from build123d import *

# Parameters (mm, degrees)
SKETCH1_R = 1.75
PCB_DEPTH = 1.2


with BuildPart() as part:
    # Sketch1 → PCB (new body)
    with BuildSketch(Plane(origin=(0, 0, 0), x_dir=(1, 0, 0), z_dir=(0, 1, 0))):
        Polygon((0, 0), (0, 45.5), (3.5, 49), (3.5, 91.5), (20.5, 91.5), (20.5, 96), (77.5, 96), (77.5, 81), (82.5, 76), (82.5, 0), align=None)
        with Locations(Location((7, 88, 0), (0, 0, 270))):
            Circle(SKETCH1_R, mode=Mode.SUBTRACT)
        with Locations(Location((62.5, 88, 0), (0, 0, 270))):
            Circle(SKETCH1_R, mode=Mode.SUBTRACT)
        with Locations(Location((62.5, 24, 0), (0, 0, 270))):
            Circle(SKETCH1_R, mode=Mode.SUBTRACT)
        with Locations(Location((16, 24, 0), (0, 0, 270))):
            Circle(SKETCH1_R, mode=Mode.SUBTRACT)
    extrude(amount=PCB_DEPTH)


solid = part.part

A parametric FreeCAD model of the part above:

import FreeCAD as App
import Part
import Sketcher

V = App.Vector
Q = App.Units.Quantity

doc = App.newDocument("Part")
body = doc.addObject("PartDesign::Body", "Body")

# Sketch on XZ plane
sketch1 = doc.addObject("Sketcher::SketchObject", "Sketch")
body.addObject(sketch1)
sketch1.AttachmentSupport = (doc.XZ_Plane, [""])
sketch1.MapMode = "FlatFace"
sketch1.addGeometry(Part.LineSegment(V(0, -45.5, 0), V(0, 0, 0)), False)
sketch1.addGeometry(Part.LineSegment(V(0, 0, 0), V(82.5, 0, 0)), False)
sketch1.addGeometry(Part.LineSegment(V(82.5, 0, 0), V(82.5, -76, 0)), False)
sketch1.addGeometry(Part.LineSegment(V(82.5, -76, 0), V(77.5, -81, 0)), False)
sketch1.addGeometry(Part.LineSegment(V(77.5, -81, 0), V(77.5, -96, 0)), False)
sketch1.addGeometry(Part.LineSegment(V(77.5, -96, 0), V(20.5, -96, 0)), False)
sketch1.addGeometry(Part.LineSegment(V(20.5, -96, 0), V(20.5, -91.5, 0)), False)
sketch1.addGeometry(Part.LineSegment(V(20.5, -91.5, 0), V(3.5, -91.5, 0)), False)
sketch1.addGeometry(Part.LineSegment(V(3.5, -91.5, 0), V(3.5, -49, 0)), False)
sketch1.addGeometry(Part.LineSegment(V(3.5, -49, 0), V(0, -45.5, 0)), False)
sketch1.addGeometry(Part.Circle(V(62.5, -24, 0), V(0, 0, 1), 1.8), False)
sketch1.addGeometry(Part.Circle(V(16, -24, 0), V(0, 0, 1), 1.8), False)
sketch1.addGeometry(Part.Circle(V(62.5, -88, 0), V(0, 0, 1), 1.8), False)
sketch1.addGeometry(Part.Circle(V(7, -88, 0), V(0, 0, 1), 1.8), False)
sketch1.addConstraint(Sketcher.Constraint("Coincident", 0, 2, 1, 1))
sketch1.addConstraint(Sketcher.Constraint("Coincident", 1, 2, 2, 1))
sketch1.addConstraint(Sketcher.Constraint("Coincident", 2, 2, 3, 1))
sketch1.addConstraint(Sketcher.Constraint("Coincident", 3, 2, 4, 1))
sketch1.addConstraint(Sketcher.Constraint("Coincident", 4, 2, 5, 1))
sketch1.addConstraint(Sketcher.Constraint("Coincident", 5, 2, 6, 1))
sketch1.addConstraint(Sketcher.Constraint("Coincident", 6, 2, 7, 1))
sketch1.addConstraint(Sketcher.Constraint("Coincident", 7, 2, 8, 1))
sketch1.addConstraint(Sketcher.Constraint("Coincident", 8, 2, 9, 1))
sketch1.addConstraint(Sketcher.Constraint("Coincident", 9, 2, 0, 1))
sketch1.addConstraint(Sketcher.Constraint("Vertical", 0))
sketch1.addConstraint(Sketcher.Constraint("Horizontal", 1))
sketch1.addConstraint(Sketcher.Constraint("Vertical", 2))
sketch1.addConstraint(Sketcher.Constraint("Vertical", 4))
sketch1.addConstraint(Sketcher.Constraint("Horizontal", 5))
sketch1.addConstraint(Sketcher.Constraint("Vertical", 6))
sketch1.addConstraint(Sketcher.Constraint("Horizontal", 7))
sketch1.addConstraint(Sketcher.Constraint("Vertical", 8))
sketch1.addConstraint(Sketcher.Constraint("Coincident", 0, 2, -1, 1))
sketch1.addConstraint(Sketcher.Constraint("Equal", 10, 11))
sketch1.addConstraint(Sketcher.Constraint("Equal", 11, 12))
sketch1.addConstraint(Sketcher.Constraint("Equal", 12, 13))
sketch1.addConstraint(Sketcher.Constraint("Perpendicular", 3, 9))
sketch1.addConstraint(Sketcher.Constraint("Horizontal", 10, 3, 11, 3))
sketch1.addConstraint(Sketcher.Constraint("Horizontal", 12, 3, 13, 3))
sketch1.addConstraint(Sketcher.Constraint("Vertical", 10, 3, 12, 3))
sketch1.addConstraint(Sketcher.Constraint("Diameter", 10, Q("3.5 mm")))
sketch1.addConstraint(Sketcher.Constraint("DistanceX", 5, 2, 5, 1, Q("57 mm")))
sketch1.addConstraint(Sketcher.Constraint("DistanceX", 7, 2, 7, 1, Q("17 mm")))
sketch1.addConstraint(Sketcher.Constraint("DistanceY", 2, 2, 2, 1, Q("76 mm")))
sketch1.addConstraint(Sketcher.Constraint("DistanceY", 4, 2, 4, 1, Q("15 mm")))
sketch1.addConstraint(Sketcher.Constraint("Angle", 3, Q("-135 deg")))
sketch1.addConstraint(Sketcher.Constraint("DistanceX", 1, 1, 1, 2, Q("82.5 mm")))
sketch1.addConstraint(Sketcher.Constraint("DistanceY", 0, 1, 0, 2, Q("45.5 mm")))
sketch1.addConstraint(Sketcher.Constraint("DistanceY", 6, 1, 6, 2, Q("4.5 mm")))
sketch1.addConstraint(Sketcher.Constraint("DistanceY", 8, 1, 8, 2, Q("42.5 mm")))
sketch1.addConstraint(Sketcher.Constraint("DistanceY", 10, 3, -1, 1, Q("24 mm")))
sketch1.addConstraint(Sketcher.Constraint("DistanceX", -1, 1, 11, 3, Q("16 mm")))
sketch1.addConstraint(Sketcher.Constraint("DistanceY", 12, 3, -1, 1, Q("88 mm")))
sketch1.addConstraint(Sketcher.Constraint("DistanceX", -1, 1, 13, 3, Q("7 mm")))
sketch1.addConstraint(Sketcher.Constraint("DistanceX", 10, 3, 1, 2, Q("20 mm")))
pad1 = doc.addObject("PartDesign::Pad", "Pad")
body.addObject(pad1)
pad1.Profile = sketch1
pad1.Length = 1.2
pad1.Reversed = True

doc.recompute()
